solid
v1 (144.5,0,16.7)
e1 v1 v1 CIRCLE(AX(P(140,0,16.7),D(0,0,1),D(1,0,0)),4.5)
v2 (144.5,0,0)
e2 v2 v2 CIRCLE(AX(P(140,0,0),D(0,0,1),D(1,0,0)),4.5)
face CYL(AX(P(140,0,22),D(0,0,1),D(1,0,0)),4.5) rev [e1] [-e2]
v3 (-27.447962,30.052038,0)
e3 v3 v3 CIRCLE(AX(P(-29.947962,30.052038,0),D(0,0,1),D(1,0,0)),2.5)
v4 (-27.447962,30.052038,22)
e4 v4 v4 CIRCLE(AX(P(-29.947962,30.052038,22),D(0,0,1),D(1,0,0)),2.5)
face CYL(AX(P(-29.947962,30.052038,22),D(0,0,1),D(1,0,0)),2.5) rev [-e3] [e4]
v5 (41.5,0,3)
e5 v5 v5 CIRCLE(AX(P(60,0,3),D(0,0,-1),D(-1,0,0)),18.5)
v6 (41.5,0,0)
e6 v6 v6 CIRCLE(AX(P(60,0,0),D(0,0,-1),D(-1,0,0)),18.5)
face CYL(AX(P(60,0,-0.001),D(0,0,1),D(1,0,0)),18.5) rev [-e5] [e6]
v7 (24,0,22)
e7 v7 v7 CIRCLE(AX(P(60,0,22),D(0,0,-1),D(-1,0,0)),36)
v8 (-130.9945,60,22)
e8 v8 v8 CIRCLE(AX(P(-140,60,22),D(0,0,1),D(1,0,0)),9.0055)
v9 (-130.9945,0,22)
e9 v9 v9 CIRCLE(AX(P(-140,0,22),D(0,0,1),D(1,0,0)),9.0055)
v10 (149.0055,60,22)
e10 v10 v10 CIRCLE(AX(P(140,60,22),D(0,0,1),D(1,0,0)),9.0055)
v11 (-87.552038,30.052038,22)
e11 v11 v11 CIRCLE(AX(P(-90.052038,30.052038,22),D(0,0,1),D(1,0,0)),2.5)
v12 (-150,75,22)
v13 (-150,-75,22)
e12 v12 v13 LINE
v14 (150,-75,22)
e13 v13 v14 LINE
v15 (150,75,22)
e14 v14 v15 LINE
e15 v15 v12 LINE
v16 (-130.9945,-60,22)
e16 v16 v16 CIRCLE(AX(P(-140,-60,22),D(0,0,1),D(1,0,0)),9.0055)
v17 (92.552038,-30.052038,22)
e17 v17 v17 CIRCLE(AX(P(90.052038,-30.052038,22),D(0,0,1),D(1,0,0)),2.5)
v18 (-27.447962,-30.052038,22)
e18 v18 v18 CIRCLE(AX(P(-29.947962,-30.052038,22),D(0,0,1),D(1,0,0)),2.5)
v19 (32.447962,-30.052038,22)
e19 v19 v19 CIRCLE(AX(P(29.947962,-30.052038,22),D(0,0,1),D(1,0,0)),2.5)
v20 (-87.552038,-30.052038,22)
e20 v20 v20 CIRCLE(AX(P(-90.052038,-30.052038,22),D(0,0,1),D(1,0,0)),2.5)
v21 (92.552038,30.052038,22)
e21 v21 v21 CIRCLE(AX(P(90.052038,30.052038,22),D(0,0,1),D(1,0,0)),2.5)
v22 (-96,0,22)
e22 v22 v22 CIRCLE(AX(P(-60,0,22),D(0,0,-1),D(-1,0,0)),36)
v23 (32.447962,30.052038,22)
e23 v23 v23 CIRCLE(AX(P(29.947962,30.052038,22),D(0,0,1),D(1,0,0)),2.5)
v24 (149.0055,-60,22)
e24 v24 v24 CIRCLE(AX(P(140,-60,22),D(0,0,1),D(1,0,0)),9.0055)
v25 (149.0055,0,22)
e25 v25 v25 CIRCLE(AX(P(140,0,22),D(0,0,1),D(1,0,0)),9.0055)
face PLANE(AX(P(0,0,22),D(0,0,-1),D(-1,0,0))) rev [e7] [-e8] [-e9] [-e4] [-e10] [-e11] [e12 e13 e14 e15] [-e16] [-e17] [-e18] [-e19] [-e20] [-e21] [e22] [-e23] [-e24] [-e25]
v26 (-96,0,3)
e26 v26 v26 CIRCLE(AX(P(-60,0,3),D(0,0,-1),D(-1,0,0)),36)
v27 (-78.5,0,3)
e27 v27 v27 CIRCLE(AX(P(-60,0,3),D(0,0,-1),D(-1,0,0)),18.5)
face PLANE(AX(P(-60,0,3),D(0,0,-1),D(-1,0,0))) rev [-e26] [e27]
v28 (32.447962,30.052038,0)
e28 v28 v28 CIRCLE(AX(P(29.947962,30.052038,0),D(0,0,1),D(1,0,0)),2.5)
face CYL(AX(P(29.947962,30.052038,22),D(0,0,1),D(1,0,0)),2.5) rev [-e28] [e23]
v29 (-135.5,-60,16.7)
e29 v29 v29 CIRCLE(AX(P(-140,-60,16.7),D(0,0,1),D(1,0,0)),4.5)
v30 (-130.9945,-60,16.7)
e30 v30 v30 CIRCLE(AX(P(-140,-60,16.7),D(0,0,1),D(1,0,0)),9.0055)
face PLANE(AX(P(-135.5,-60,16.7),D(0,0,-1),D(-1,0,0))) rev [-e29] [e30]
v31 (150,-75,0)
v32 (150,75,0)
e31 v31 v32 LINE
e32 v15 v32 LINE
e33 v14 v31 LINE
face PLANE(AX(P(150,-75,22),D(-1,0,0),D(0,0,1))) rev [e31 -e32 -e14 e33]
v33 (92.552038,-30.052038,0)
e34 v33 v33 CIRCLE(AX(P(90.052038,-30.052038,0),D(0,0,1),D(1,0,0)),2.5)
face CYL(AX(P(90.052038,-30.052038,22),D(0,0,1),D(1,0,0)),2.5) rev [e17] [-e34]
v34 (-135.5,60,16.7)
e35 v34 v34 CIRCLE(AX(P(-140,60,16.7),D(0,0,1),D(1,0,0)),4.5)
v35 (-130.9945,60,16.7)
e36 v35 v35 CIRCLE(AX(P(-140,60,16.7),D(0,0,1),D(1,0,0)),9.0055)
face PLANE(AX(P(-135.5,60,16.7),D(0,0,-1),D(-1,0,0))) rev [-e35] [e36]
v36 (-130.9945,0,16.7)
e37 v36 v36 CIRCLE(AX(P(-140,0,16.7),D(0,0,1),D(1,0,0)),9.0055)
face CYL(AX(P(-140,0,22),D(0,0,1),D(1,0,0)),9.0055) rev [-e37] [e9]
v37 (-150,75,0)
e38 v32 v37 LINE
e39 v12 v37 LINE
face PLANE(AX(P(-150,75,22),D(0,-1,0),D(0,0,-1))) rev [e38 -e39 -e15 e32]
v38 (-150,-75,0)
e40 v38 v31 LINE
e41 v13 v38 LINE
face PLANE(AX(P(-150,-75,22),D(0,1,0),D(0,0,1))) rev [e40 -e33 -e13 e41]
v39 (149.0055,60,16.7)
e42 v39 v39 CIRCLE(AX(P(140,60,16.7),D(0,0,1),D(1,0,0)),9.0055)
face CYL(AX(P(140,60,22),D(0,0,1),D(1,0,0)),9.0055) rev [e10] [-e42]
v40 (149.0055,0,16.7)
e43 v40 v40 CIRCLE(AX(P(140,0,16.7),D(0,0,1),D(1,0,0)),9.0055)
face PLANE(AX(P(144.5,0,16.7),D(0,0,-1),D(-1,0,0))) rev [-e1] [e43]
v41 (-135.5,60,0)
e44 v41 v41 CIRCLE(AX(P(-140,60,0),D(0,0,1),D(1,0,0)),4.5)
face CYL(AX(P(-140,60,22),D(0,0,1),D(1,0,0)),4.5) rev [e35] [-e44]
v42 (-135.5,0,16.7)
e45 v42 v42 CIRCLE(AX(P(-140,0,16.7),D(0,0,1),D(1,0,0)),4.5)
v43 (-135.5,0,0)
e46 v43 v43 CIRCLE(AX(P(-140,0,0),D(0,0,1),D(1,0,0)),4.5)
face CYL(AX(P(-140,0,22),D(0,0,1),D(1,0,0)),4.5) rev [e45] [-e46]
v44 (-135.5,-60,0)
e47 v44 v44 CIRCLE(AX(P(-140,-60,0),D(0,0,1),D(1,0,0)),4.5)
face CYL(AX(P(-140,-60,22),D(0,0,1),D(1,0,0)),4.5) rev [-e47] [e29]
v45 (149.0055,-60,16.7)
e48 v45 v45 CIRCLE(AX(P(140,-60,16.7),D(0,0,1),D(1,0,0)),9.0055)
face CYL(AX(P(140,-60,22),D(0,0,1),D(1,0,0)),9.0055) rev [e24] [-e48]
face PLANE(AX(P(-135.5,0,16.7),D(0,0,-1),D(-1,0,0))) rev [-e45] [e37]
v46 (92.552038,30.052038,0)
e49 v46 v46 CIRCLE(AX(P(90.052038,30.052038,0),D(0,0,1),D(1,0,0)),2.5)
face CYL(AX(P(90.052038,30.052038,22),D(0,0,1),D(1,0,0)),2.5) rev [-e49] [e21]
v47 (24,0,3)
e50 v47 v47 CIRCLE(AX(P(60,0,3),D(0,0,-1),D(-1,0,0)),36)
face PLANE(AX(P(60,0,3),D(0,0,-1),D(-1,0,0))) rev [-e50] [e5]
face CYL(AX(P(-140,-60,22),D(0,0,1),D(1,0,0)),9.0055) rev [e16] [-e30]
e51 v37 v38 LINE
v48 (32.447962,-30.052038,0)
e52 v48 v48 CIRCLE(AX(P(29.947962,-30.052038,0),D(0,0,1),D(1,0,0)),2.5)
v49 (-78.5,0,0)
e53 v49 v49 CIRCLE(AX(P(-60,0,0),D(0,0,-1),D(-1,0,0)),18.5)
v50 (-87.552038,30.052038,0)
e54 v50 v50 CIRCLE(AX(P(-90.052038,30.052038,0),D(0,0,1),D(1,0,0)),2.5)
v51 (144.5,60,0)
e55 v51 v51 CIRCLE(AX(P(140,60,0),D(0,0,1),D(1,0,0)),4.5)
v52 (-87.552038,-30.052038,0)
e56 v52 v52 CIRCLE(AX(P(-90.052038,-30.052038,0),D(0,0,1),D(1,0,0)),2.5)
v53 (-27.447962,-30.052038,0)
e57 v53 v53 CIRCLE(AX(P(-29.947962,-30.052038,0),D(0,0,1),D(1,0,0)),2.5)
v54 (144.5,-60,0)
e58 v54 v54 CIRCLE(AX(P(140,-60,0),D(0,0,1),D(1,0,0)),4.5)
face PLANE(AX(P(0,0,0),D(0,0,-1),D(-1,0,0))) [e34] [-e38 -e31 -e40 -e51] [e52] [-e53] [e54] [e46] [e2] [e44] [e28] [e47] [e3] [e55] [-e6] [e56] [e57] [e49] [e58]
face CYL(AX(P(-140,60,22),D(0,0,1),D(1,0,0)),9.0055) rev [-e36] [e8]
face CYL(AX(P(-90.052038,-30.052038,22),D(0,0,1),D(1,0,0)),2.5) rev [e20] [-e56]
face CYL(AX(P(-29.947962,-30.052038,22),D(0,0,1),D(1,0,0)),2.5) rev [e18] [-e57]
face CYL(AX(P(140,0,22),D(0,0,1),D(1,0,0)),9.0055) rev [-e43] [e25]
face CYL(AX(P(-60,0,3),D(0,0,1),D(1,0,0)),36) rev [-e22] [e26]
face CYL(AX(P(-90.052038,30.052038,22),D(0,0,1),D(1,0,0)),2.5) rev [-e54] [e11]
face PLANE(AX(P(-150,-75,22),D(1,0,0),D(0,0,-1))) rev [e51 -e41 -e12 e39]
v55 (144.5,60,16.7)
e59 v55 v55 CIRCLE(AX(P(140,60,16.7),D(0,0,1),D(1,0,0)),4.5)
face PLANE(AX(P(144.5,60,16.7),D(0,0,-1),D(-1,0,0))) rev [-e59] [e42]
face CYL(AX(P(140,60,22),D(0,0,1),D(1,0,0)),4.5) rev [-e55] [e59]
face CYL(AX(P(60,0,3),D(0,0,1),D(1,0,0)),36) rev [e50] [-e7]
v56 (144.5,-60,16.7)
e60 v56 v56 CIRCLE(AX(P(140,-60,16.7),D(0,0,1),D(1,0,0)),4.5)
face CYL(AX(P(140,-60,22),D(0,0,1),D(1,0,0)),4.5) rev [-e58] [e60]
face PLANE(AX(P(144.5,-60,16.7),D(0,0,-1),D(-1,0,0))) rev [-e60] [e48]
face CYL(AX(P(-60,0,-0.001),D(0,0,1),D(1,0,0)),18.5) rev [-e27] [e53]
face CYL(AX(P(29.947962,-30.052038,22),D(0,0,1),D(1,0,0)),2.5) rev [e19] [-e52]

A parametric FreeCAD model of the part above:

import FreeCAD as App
import Part
import Sketcher
from FreeCAD import Vector

doc = App.newDocument("Part")
body = doc.addObject("PartDesign::Body", "Body")

sketch1 = doc.addObject("Sketcher::SketchObject", "Sketch")
body.addObject(sketch1)
sketch1.AttachmentSupport = (doc.XY_Plane, [""])
sketch1.MapMode = "FlatFace"
sketch1.addGeometry(Part.LineSegment(Vector(-150, 75, 0), Vector(-150, -75, 0)), False)
sketch1.addGeometry(Part.LineSegment(Vector(-150, -75, 0), Vector(150, -75, 0)), False)
sketch1.addGeometry(Part.LineSegment(Vector(150, -75, 0), Vector(150, 75, 0)), False)
sketch1.addGeometry(Part.LineSegment(Vector(150, 75, 0), Vector(-150, 75, 0)), False)
sketch1.addConstraint(Sketcher.Constraint("Coincident", 0, 2, 1, 1))
sketch1.addConstraint(Sketcher.Constraint("Coincident", 1, 2, 2, 1))
sketch1.addConstraint(Sketcher.Constraint("Coincident", 2, 2, 3, 1))
sketch1.addConstraint(Sketcher.Constraint("Coincident", 3, 2, 0, 1))
sketch1.addConstraint(Sketcher.Constraint("Vertical", 0))
sketch1.addConstraint(Sketcher.Constraint("Horizontal", 1))
sketch1.addConstraint(Sketcher.Constraint("Vertical", 2))
sketch1.addConstraint(Sketcher.Constraint("Horizontal", 3))
sketch1.addConstraint(Sketcher.Constraint("Symmetric", 0, 2, 2, 2, -1, 1))
sketch1.addConstraint(Sketcher.Constraint("DistanceX", 1, 1, 1, 2, 300.0))
sketch1.addConstraint(Sketcher.Constraint("DistanceY", 0, 2, 0, 1, 150.0))
pad1 = doc.addObject("PartDesign::Pad", "Pad")
body.addObject(pad1)
pad1.Profile = sketch1
pad1.Length = 22

sketch2 = doc.addObject("Sketcher::SketchObject", "Sketch001")
body.addObject(sketch2)
sketch2.AttachmentSupport = (doc.XY_Plane, [""])
sketch2.MapMode = "FlatFace"
sketch2.AttachmentOffset = App.Placement(Vector(0, 0, 22), App.Rotation())
sketch2.addGeometry(Part.Circle(Vector(-60, 0, 0), Vector(0, 0, 1), 36), False)
sketch2.addConstraint(Sketcher.Constraint("PointOnObject", 0, 3, -1))
sketch2.addConstraint(Sketcher.Constraint("Diameter", 0, 72.0))
sketch2.addConstraint(Sketcher.Constraint("DistanceX", 0, 3, -1, 1, 60.0))
pocket1 = doc.addObject("PartDesign::Pocket", "Pocket")
body.addObject(pocket1)
pocket1.Profile = sketch2
pocket1.Length = 19

sketch3 = doc.addObject("Sketcher::SketchObject", "Sketch002")
body.addObject(sketch3)
sketch3.AttachmentSupport = (doc.XY_Plane, [""])
sketch3.MapMode = "FlatFace"
sketch3.addGeometry(Part.Circle(Vector(-60, 0, 0), Vector(0, 0, 1), 18.5), False)
sketch3.addConstraint(Sketcher.Constraint("PointOnObject", 0, 3, -1))
sketch3.addConstraint(Sketcher.Constraint("Diameter", 0, 37.0))
sketch3.addConstraint(Sketcher.Constraint("DistanceX", 0, 3, -1, 1, 60.0))
pocket2 = doc.addObject("PartDesign::Pocket", "Pocket001")
body.addObject(pocket2)
pocket2.Profile = sketch3
pocket2.Length = 3
pocket2.Reversed = True

sketch4 = doc.addObject("Sketcher::SketchObject", "Sketch003")
body.addObject(sketch4)
sketch4.AttachmentSupport = (doc.XY_Plane, [""])
sketch4.MapMode = "FlatFace"
sketch4.AttachmentOffset = App.Placement(Vector(0, 0, 22), App.Rotation())
sketch4.addGeometry(Part.Circle(Vector(-140, 60, 0), Vector(0, 0, 1), 4.5), False)
sketch4.addGeometry(Part.Circle(Vector(-140, 0, 0), Vector(0, 0, 1), 4.5), False)
sketch4.addGeometry(Part.Circle(Vector(-140, -60, 0), Vector(0, 0, 1), 4.5), False)
sketch4.addConstraint(Sketcher.Constraint("Equal", 0, 1))
sketch4.addConstraint(Sketcher.Constraint("Equal", 1, 2))
sketch4.addConstraint(Sketcher.Constraint("Symmetric", 0, 3, 2, 3, -1))
sketch4.addConstraint(Sketcher.Constraint("PointOnObject", 1, 3, -1))
sketch4.addConstraint(Sketcher.Constraint("Vertical", 0, 3, 1, 3))
sketch4.addConstraint(Sketcher.Constraint("Diameter", 0, 9.0))
sketch4.addConstraint(Sketcher.Constraint("DistanceX", 0, 3, -1, 1, 140.0))
sketch4.addConstraint(Sketcher.Constraint("DistanceY", -1, 1, 0, 3, 60.0))
doc.recompute()
hole = doc.addObject("PartDesign::Hole", "Hole")
body.addObject(hole)
hole.Profile = sketch4
hole.ThreadType = "None"
hole.Diameter = 9
hole.DepthType = "ThroughAll"
hole.HoleCutType = "Counterbore"
hole.HoleCutDiameter = 18.011
hole.HoleCutDepth = 5.3
doc.recompute()

mirrored = doc.addObject("PartDesign::Mirrored", "Mirrored")
body.addObject(mirrored)
mirrored.Originals = [pocket1, pocket2, hole]
mirrored.MirrorPlane = (doc.YZ_Plane, [""])
body.Tip = mirrored

sketch5 = doc.addObject("Sketcher::SketchObject", "Sketch004")
body.addObject(sketch5)
sketch5.AttachmentSupport = (doc.XY_Plane, [""])
sketch5.MapMode = "FlatFace"
sketch5.AttachmentOffset = App.Placement(Vector(0, 0, 22), App.Rotation())
sketch5.addGeometry(Part.Circle(Vector(-29.947962, 30.052038, 0), Vector(0, 0, 1), 2.5), False)
sketch5.addConstraint(Sketcher.Constraint("Diameter", 0, 5.0))
sketch5.addConstraint(Sketcher.Constraint("DistanceX", 0, 3, -1, 1, 29.947962))
sketch5.addConstraint(Sketcher.Constraint("DistanceY", -1, 1, 0, 3, 30.052038))
doc.recompute()
hole2 = doc.addObject("PartDesign::Hole", "Hole001")
body.addObject(hole2)
hole2.Profile = sketch5
hole2.ThreadType = "None"
hole2.Diameter = 5
hole2.DepthType = "ThroughAll"
doc.recompute()

datumline = doc.addObject("PartDesign::Line", "DatumLine")
body.addObject(datumline)
datumline.Placement = App.Placement(Vector(-60, 0, 0), App.Rotation(Vector(0, 0, 1), Vector(0, 0, 1)))
polarpattern = doc.addObject("PartDesign::PolarPattern", "PolarPattern")
body.addObject(polarpattern)
polarpattern.Originals = [hole2]
polarpattern.Axis = (datumline, [""])
polarpattern.Angle = 360
polarpattern.Occurrences = 4
body.Tip = polarpattern
doc.recompute()

mirrored2 = doc.addObject("PartDesign::Mirrored", "Mirrored001")
body.addObject(mirrored2)
mirrored2.Originals = [hole2]
mirrored2.MirrorPlane = (doc.YZ_Plane, [""])
body.Tip = mirrored2

sketch6 = doc.addObject("Sketcher::SketchObject", "Sketch005")
body.addObject(sketch6)
sketch6.AttachmentSupport = (doc.XY_Plane, [""])
sketch6.MapMode = "FlatFace"
sketch6.AttachmentOffset = App.Placement(Vector(0, 0, 22), App.Rotation())
sketch6.addGeometry(Part.Circle(Vector(90.052038, 30.052038, 0), Vector(0, 0, 1), 2.5), False)
sketch6.addConstraint(Sketcher.Constraint("Diameter", 0, 5.0))
sketch6.addConstraint(Sketcher.Constraint("DistanceX", -1, 1, 0, 3, 90.052038))
sketch6.addConstraint(Sketcher.Constraint("DistanceY", -1, 1, 0, 3, 30.052038))
doc.recompute()
hole3 = doc.addObject("PartDesign::Hole", "Hole002")
body.addObject(hole3)
hole3.Profile = sketch6
hole3.ThreadType = "None"
hole3.Diameter = 5
hole3.DepthType = "ThroughAll"

sketch7 = doc.addObject("Sketcher::SketchObject", "Sketch006")
body.addObject(sketch7)
sketch7.AttachmentSupport = (doc.XY_Plane, [""])
sketch7.MapMode = "FlatFace"
sketch7.AttachmentOffset = App.Placement(Vector(0, 0, 22), App.Rotation())
sketch7.addGeometry(Part.Circle(Vector(90.052038, -30.052038, 0), Vector(0, 0, 1), 2.5), False)
sketch7.addConstraint(Sketcher.Constraint("Diameter", 0, 5.0))
sketch7.addConstraint(Sketcher.Constraint("DistanceX", -1, 1, 0, 3, 90.052038))
sketch7.addConstraint(Sketcher.Constraint("DistanceY", 0, 3, -1, 1, 30.052038))
doc.recompute()
hole4 = doc.addObject("PartDesign::Hole", "Hole003")
body.addObject(hole4)
hole4.Profile = sketch7
hole4.ThreadType = "None"
hole4.Diameter = 5
hole4.DepthType = "ThroughAll"

sketch8 = doc.addObject("Sketcher::SketchObject", "Sketch007")
body.addObject(sketch8)
sketch8.AttachmentSupport = (doc.XY_Plane, [""])
sketch8.MapMode = "FlatFace"
sketch8.AttachmentOffset = App.Placement(Vector(0, 0, 22), App.Rotation())
sketch8.addGeometry(Part.Circle(Vector(29.947962, -30.052038, 0), Vector(0, 0, 1), 2.5), False)
sketch8.addConstraint(Sketcher.Constraint("Diameter", 0, 5.0))
sketch8.addConstraint(Sketcher.Constraint("DistanceX", -1, 1, 0, 3, 29.947962))
sketch8.addConstraint(Sketcher.Constraint("DistanceY", 0, 3, -1, 1, 30.052038))
doc.recompute()
hole5 = doc.addObject("PartDesign::Hole", "Hole004")
body.addObject(hole5)
hole5.Profile = sketch8
hole5.ThreadType = "None"
hole5.Diameter = 5
hole5.DepthType = "ThroughAll"

doc.recompute()
